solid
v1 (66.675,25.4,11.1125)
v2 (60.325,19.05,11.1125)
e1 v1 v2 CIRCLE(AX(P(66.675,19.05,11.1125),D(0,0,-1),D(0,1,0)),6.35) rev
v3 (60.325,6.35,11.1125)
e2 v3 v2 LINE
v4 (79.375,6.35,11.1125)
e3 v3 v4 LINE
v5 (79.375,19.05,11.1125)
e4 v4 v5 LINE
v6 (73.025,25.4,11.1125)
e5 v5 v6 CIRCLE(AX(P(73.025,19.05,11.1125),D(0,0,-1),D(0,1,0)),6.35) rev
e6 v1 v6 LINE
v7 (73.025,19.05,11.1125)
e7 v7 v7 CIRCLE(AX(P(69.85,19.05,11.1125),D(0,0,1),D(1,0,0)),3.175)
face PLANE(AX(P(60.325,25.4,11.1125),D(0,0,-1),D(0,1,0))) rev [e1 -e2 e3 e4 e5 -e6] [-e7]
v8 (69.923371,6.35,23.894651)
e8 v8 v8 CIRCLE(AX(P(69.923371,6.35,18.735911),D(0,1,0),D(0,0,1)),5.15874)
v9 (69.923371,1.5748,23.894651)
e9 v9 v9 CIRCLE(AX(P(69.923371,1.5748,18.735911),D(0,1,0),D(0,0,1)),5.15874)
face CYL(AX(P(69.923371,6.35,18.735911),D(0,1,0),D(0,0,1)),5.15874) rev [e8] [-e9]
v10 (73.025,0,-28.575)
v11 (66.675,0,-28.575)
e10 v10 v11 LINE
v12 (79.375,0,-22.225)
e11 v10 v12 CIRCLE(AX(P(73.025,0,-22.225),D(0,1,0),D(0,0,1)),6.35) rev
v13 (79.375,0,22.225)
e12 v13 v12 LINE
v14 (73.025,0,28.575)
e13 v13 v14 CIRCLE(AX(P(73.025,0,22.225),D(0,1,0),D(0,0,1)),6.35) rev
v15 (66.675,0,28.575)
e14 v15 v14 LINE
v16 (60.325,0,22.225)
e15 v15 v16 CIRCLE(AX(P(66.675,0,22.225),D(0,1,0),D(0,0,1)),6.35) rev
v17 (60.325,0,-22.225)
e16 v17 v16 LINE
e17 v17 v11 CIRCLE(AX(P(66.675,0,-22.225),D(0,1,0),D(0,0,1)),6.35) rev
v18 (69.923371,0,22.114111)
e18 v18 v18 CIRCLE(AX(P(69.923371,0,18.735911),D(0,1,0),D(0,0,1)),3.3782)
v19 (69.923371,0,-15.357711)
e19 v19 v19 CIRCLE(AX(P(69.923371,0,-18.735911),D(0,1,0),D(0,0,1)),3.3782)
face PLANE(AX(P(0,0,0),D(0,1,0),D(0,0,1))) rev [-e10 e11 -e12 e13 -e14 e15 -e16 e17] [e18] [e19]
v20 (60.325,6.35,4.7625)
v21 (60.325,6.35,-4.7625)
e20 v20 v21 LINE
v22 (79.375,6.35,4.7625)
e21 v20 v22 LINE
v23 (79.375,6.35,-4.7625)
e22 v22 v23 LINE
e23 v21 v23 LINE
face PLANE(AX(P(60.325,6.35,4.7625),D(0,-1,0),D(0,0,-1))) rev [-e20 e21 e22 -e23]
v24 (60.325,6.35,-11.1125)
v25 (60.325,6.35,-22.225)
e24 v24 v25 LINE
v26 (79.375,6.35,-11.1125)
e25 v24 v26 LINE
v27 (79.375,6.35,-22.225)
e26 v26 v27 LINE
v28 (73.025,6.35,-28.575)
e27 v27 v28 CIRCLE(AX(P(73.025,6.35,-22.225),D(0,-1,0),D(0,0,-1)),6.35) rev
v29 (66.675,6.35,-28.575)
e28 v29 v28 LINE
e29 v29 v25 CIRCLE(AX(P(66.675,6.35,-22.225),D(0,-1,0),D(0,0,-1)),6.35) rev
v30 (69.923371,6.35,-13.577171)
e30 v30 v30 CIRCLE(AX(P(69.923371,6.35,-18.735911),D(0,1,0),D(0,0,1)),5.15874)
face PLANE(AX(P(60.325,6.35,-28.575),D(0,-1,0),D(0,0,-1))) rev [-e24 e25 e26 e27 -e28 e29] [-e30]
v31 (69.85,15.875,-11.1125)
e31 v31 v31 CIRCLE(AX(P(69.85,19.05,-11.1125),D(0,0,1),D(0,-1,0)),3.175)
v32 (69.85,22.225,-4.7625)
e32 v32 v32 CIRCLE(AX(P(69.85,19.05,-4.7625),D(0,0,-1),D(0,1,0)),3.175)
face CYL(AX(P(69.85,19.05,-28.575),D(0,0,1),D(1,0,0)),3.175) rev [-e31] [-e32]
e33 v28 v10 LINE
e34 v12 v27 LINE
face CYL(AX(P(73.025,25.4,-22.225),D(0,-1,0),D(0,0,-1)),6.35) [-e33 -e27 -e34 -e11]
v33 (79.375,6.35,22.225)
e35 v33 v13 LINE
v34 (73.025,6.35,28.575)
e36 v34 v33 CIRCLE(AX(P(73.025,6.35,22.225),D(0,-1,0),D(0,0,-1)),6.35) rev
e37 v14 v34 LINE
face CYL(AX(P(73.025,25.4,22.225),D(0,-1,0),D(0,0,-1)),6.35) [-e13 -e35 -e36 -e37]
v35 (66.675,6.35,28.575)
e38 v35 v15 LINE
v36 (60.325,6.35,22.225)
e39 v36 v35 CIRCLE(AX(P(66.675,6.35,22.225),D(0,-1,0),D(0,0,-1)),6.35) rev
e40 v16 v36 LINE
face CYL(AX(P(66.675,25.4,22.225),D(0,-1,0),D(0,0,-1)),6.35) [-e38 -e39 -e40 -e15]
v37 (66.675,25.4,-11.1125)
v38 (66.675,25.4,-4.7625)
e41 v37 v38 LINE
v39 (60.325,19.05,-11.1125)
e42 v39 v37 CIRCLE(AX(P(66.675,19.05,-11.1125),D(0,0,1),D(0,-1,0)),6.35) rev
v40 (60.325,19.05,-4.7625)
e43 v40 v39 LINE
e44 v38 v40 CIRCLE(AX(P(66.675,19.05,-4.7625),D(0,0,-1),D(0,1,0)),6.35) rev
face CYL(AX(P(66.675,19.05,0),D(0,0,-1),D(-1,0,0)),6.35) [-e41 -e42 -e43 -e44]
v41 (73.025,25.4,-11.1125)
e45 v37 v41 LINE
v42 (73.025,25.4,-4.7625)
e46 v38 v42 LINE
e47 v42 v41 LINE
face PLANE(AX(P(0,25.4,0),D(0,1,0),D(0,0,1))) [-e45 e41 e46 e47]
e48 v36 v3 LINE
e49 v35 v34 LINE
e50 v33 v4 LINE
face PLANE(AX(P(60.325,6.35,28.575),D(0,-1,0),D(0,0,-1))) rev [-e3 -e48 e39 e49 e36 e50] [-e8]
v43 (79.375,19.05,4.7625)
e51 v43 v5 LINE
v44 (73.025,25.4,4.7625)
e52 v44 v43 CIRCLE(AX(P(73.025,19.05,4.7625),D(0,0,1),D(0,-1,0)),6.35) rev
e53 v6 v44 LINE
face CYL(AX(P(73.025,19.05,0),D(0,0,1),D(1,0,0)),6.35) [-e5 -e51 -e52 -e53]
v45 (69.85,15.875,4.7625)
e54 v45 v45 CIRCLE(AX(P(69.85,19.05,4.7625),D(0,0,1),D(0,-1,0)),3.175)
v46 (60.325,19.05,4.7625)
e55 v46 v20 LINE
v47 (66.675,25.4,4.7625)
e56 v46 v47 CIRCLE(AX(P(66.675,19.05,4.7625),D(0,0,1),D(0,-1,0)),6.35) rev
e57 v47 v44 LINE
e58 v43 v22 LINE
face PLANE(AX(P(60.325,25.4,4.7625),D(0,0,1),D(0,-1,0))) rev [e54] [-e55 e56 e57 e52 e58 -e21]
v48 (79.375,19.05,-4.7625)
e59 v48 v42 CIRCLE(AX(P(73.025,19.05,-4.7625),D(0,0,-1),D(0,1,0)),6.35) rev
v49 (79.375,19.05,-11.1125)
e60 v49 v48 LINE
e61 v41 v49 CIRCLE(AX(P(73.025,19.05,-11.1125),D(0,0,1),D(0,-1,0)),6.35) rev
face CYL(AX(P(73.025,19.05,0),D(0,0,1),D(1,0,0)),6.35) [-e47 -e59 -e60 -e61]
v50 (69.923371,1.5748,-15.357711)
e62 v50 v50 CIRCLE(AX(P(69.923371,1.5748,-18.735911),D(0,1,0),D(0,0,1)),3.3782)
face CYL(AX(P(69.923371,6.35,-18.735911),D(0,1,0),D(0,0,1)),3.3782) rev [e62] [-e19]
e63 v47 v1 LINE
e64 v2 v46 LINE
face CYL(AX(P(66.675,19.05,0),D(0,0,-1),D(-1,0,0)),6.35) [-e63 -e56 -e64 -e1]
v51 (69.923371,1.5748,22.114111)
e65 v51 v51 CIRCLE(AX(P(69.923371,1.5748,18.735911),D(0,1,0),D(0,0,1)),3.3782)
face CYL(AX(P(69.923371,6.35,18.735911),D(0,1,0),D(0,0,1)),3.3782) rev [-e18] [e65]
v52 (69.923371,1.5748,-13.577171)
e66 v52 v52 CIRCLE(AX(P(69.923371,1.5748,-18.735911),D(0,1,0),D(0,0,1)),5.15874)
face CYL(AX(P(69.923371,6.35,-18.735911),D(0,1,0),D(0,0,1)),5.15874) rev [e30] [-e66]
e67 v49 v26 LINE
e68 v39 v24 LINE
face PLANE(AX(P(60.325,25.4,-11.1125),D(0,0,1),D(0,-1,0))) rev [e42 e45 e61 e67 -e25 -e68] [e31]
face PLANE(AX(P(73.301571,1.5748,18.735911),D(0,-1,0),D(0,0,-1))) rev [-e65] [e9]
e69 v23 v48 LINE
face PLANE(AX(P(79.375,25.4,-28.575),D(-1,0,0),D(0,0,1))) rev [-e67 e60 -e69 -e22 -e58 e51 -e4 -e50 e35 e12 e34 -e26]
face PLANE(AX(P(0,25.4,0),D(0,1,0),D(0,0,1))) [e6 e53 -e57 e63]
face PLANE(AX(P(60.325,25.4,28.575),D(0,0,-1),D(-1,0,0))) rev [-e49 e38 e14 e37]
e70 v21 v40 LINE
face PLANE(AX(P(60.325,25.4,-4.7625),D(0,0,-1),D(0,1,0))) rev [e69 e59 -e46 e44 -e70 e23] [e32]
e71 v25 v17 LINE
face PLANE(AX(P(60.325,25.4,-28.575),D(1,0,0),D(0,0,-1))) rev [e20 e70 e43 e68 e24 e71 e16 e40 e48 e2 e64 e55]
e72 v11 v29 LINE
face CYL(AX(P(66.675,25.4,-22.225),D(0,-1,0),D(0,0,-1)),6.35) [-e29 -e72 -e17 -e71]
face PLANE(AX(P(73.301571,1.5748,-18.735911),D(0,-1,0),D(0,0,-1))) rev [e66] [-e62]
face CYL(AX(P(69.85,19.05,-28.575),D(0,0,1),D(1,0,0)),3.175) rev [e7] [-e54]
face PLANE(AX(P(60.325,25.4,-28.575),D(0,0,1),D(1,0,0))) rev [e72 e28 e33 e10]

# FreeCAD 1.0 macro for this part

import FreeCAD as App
import Part
import Sketcher

V = App.Vector
Q = App.Units.Quantity


def edges_at(feature, points):
    """Names of the edges that pass closest to the given points."""
    edges = feature.Shape.Edges
    near = lambda p: min(range(len(edges)), key=lambda i: edges[i].distToShape(Part.Vertex(*p))[0])
    return sorted({f"Edge{near(p) + 1}" for p in points})


def add_polygon(sketch, points):
    """Adds a closed chain of lines whose ends are joined by coincident constraints."""
    first, n = sketch.GeometryCount, len(points)
    for a, b in zip(points, points[1:] + points[:1]):
        sketch.addGeometry(Part.LineSegment(App.Vector(*a, 0), App.Vector(*b, 0)), False)
    for i in range(n):
        sketch.addConstraint(Sketcher.Constraint("Coincident", first + i, 2, first + (i + 1) % n, 1))

doc = App.newDocument("Part")
body = doc.addObject("PartDesign::Body", "Body")

sketch1 = body.newObject("Sketcher::SketchObject", "Sketch")
sketch1.AttachmentSupport = (doc.getObject("XZ_Plane"), [""])
sketch1.MapMode = "FlatFace"
add_polygon(sketch1, [(60.325, -28.575), (60.325, 28.575), (79.375, 28.575), (79.375, -28.575)])
sketch1.addConstraint([
    Sketcher.Constraint("Vertical", 0),
    Sketcher.Constraint("Horizontal", 1),
    Sketcher.Constraint("Vertical", 2),
    Sketcher.Constraint("Horizontal", 3),
    Sketcher.Constraint("DistanceX", 1, 1, 1, 2, Q("0.75 in")),
    Sketcher.Constraint("DistanceY", 0, 1, 0, 2, Q("2.25 in")),
    Sketcher.Constraint("DistanceX", -1, 1, 0, 2, Q("2.375 in")),
    Sketcher.Constraint("DistanceY", -1, 1, 0, 2, Q("1.125 in")),
])
pad1 = body.newObject("PartDesign::Pad", "Pad")
pad1.Profile = sketch1
pad1.Length = Q("1 in")
pad1.Reversed = True

sketch2 = body.newObject("Sketcher::SketchObject", "Sketch001")
sketch2.AttachmentSupport = (doc.getObject("YZ_Plane"), [""])
sketch2.MapMode = "FlatFace"
sketch2.AttachmentOffset = App.Placement(V(0, 0, 3.125 * 25.4), App.Rotation())
add_polygon(sketch2, [(25.4, 28.575), (6.35, 28.575), (6.35, 11.1125), (25.4, 11.1125)])
add_polygon(sketch2, [(25.4, 4.7625), (6.35, 4.7625), (6.35, -4.7625), (25.4, -4.7625)])
add_polygon(sketch2, [(25.4, -11.1125), (6.35, -11.1125), (6.35, -28.575), (25.4, -28.575)])
sketch2.addConstraint([
    Sketcher.Constraint("Horizontal", 0),
    Sketcher.Constraint("Vertical", 1),
    Sketcher.Constraint("Horizontal", 2),
    Sketcher.Constraint("Vertical", 3),
    Sketcher.Constraint("Horizontal", 4),
    Sketcher.Constraint("Vertical", 5),
    Sketcher.Constraint("Horizontal", 6),
    Sketcher.Constraint("Vertical", 7),
    Sketcher.Constraint("Horizontal", 8),
    Sketcher.Constraint("Vertical", 9),
    Sketcher.Constraint("Horizontal", 10),
    Sketcher.Constraint("Vertical", 11),
    Sketcher.Constraint("Symmetric", 1, 2, 8, 2, -1),
    Sketcher.Constraint("Symmetric", 3, 2, 10, 2, -1),
    Sketcher.Constraint("Vertical", 1, 2, 4, 2),
    Sketcher.Constraint("Vertical", 3, 2, 6, 2),
    Sketcher.Constraint("DistanceX", -1, 1, 2, 2, Q("1 in")),
    Sketcher.Constraint("DistanceX", 0, 2, 0, 1, Q("0.75 in")),
    Sketcher.Constraint("DistanceY", 1, 2, 1, 1, Q("0.6875 in")),
    Sketcher.Constraint("DistanceY", 5, 2, 5, 1, Q("0.375 in")),
    Sketcher.Constraint("DistanceY", 4, 2, 1, 2, Q("0.25 in")),
    Sketcher.Constraint("DistanceY", 8, 2, 5, 2, Q("0.25 in")),
])
pocket1 = body.newObject("PartDesign::Pocket", "Pocket")
pocket1.Profile = sketch2
pocket1.Type = "ThroughAll"

sketch3 = body.newObject("Sketcher::SketchObject", "Sketch002")
sketch3.AttachmentSupport = (doc.getObject("XY_Plane"), [""])
sketch3.MapMode = "FlatFace"
sketch3.AttachmentOffset = App.Placement(V(0, 0, 0.4375 * 25.4), App.Rotation())
sketch3.addGeometry(Part.Circle(V(69.85, 19.05, 0), V(0, 0, 1), 3.175), False)
sketch3.addConstraint([
    Sketcher.Constraint("Diameter", 0, Q("0.25 in")),
    Sketcher.Constraint("DistanceX", -1, 1, 0, 3, Q("2.75 in")),
    Sketcher.Constraint("DistanceY", -1, 1, 0, 3, Q("0.75 in")),
])
pocket2 = body.newObject("PartDesign::Pocket", "Pocket001")
pocket2.Profile = sketch3
pocket2.Type = "ThroughAll"
doc.recompute()

fillet = body.newObject("PartDesign::Fillet", "Fillet")
fillet.Base = (pocket2, edges_at(pocket2, [
    (79.375, 25.4, 7.938),
    (79.375, 3.175, 28.575),
    (60.325, 3.175, 28.575),
    (79.375, 25.4, -7.938),
    (60.325, 25.4, -7.938),
    (60.325, 25.4, 7.938),
    (60.325, 3.175, -28.575),
    (79.375, 3.175, -28.575),
]))
fillet.Radius = Q("0.25 in")

sketch4 = body.newObject("Sketcher::SketchObject", "Sketch003")
sketch4.AttachmentSupport = (doc.getObject("XZ_Plane"), [""])
sketch4.MapMode = "FlatFace"
sketch4.AttachmentOffset = App.Placement(V(0, 0, -0.25 * 25.4), App.Rotation())
sketch4.addGeometry([
    Part.Circle(V(69.923371, -18.735911, 0), V(0, 0, 1), 3.3782),
    Part.Circle(V(69.923371, 18.735911, 0), V(0, 0, 1), 3.3782),
], False)
sketch4.addConstraint([
    Sketcher.Constraint("Equal", 0, 1),
    Sketcher.Constraint("Symmetric", 0, 3, 1, 3, -1),
    Sketcher.Constraint("Diameter", 0, Q("0.266 in")),
    Sketcher.Constraint("DistanceX", -1, 1, 0, 3, 69.923371),
    Sketcher.Constraint("DistanceY", 0, 3, -1, 1, 18.735911),
])
doc.recompute()
hole = body.newObject("PartDesign::Hole", "Hole")
hole.Profile = sketch4
hole.ThreadType = "None"
hole.Diameter = Q("0.266 in")
hole.DepthType = "ThroughAll"
hole.HoleCutType = "Counterbore"
hole.HoleCutDiameter = Q("0.4062 in")
hole.HoleCutDepth = Q("0.188 in")
hole.Reversed = True

doc.recompute()
